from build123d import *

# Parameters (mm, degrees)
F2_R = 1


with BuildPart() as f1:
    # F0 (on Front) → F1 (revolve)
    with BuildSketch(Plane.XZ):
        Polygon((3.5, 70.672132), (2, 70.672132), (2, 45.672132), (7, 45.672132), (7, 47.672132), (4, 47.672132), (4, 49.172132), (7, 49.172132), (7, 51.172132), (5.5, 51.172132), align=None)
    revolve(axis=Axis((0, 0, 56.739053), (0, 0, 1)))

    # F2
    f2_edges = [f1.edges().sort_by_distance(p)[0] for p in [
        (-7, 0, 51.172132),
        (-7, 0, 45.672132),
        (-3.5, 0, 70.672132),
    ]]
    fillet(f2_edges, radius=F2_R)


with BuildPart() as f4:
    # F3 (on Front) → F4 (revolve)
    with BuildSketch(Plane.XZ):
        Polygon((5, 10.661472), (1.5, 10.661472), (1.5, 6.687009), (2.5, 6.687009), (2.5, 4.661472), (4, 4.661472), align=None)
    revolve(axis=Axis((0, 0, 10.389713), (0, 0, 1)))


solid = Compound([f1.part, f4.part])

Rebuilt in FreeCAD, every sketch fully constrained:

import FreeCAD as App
import Part
import Sketcher
from FreeCAD import Vector
Q = App.Units.Quantity


def edges_at(feature, points):
    """Names of the edges that pass closest to the given points."""
    edges = feature.Shape.Edges
    near = lambda p: min(range(len(edges)), key=lambda i: edges[i].distToShape(Part.Vertex(*p))[0])
    return sorted({f"Edge{near(p) + 1}" for p in points})


def add_polygon(sketch, points):
    """Adds a closed chain of lines whose ends are joined by coincident constraints."""
    first, n = sketch.GeometryCount, len(points)
    for a, b in zip(points, points[1:] + points[:1]):
        sketch.addGeometry(Part.LineSegment(App.Vector(*a, 0), App.Vector(*b, 0)), False)
    for i in range(n):
        sketch.addConstraint(Sketcher.Constraint("Coincident", first + i, 2, first + (i + 1) % n, 1))

doc = App.newDocument("Part")
params = doc.addObject("Spreadsheet::Sheet", "Params")
for row, (alias, value) in enumerate([
    ("sketch1_width", "5 mm"),
    ("sketch1_width2", "3 mm"),
    ("sketch1_height", "25 mm"),
    ("sketch1_height2", "2 mm"),
    ("sketch1_width3", "1.5 mm"),
    ("revolution_angle", "360 deg"),
    ("fillet_radius", "1 mm"),
    ("sketch2_width", "1 mm"),
    ("sketch2_width2", "3.5 mm"),
    ("sketch2_width3", "1.5 mm"),
    ("revolution2_angle", "360 deg"),
], start=1):
    params.set(f"A{row}", alias)
    params.set(f"B{row}", "=" + value)
    params.setAlias(f"B{row}", alias)

body = doc.addObject("PartDesign::Body", "Body")

# Sketch on XZ plane
sketch1 = body.newObject("Sketcher::SketchObject", "Sketch")
sketch1.AttachmentSupport = (doc.getObject("XZ_Plane"), [""])
sketch1.MapMode = "FlatFace"
add_polygon(sketch1, [(3.5, 70.7), (2, 70.7), (2, 45.7), (7, 45.7), (7, 47.7), (4, 47.7), (4, 49.2), (7, 49.2), (7, 51.2), (5.5, 51.2)])  # lines 0-9
sketch1.addConstraint([
    Sketcher.Constraint("Horizontal", 0),
    Sketcher.Constraint("Vertical", 1),
    Sketcher.Constraint("Horizontal", 2),
    Sketcher.Constraint("Vertical", 3),
    Sketcher.Constraint("Horizontal", 4),
    Sketcher.Constraint("Vertical", 5),
    Sketcher.Constraint("Horizontal", 6),
    Sketcher.Constraint("Vertical", 7),
    Sketcher.Constraint("Horizontal", 8),
    Sketcher.Constraint("Vertical", 3, 2, 6, 2),
    Sketcher.Constraint("Equal", 0, 8),
    Sketcher.Constraint("Equal", 8, 5),
    Sketcher.Constraint("Equal", 3, 7),
    Sketcher.Constraint("DistanceX", 2, 1, 2, 2, Q("5 mm")),
    Sketcher.Constraint("DistanceX", 4, 2, 4, 1, Q("3 mm")),
    Sketcher.Constraint("DistanceY", 1, 2, 1, 1, Q("25 mm")),
    Sketcher.Constraint("DistanceY", 3, 1, 3, 2, Q("2 mm")),
    Sketcher.Constraint("DistanceX", 0, 2, 0, 1, Q("1.5 mm")),
    Sketcher.Constraint("DistanceX", -1, 1, 0, 2, Q("2 mm")),
    Sketcher.Constraint("DistanceY", -1, 1, 1, 2, Q("45.672132 mm")),
])
sketch1.setExpression("Constraints[23]", "Params.sketch1_width")
sketch1.setExpression("Constraints[24]", "Params.sketch1_width2")
sketch1.setExpression("Constraints[25]", "Params.sketch1_height")
sketch1.setExpression("Constraints[26]", "Params.sketch1_height2")
sketch1.setExpression("Constraints[27]", "Params.sketch1_width3")
revolution = body.newObject("PartDesign::Revolution", "Revolution")
revolution.Profile = sketch1
revolution.ReferenceAxis = (sketch1, ["V_Axis"])
revolution.setExpression("Angle", "Params.revolution_angle")
doc.recompute()

fillet = body.newObject("PartDesign::Fillet", "Fillet")
fillet.Base = (revolution, edges_at(revolution, [(-7, 0, 51.172), (-7, 0, 45.672), (-3.5, 0, 70.672)]))
fillet.setExpression("Radius", "Params.fillet_radius")
body2 = doc.addObject("PartDesign::Body", "Body001")

# Sketch on XZ plane
sketch2 = body2.newObject("Sketcher::SketchObject", "Sketch001")
sketch2.AttachmentSupport = (doc.getObject("XZ_Plane001"), [""])
sketch2.MapMode = "FlatFace"
add_polygon(sketch2, [(5, 10.7), (1.5, 10.7), (1.5, 6.7), (2.5, 6.7), (2.5, 4.7), (4, 4.7)])  # lines 0-5
sketch2.addConstraint([
    Sketcher.Constraint("Horizontal", 0),
    Sketcher.Constraint("Vertical", 1),
    Sketcher.Constraint("Horizontal", 2),
    Sketcher.Constraint("Vertical", 3),
    Sketcher.Constraint("Horizontal", 4),
    Sketcher.Constraint("DistanceX", 2, 1, 2, 2, Q("1 mm")),
    Sketcher.Constraint("DistanceX", 0, 2, 0, 1, Q("3.5 mm")),
    Sketcher.Constraint("DistanceX", 4, 1, 4, 2, Q("1.5 mm")),
    Sketcher.Constraint("DistanceX", -1, 1, 4, 2, Q("4 mm")),
    Sketcher.Constraint("DistanceY", 3, 2, 0, 2, Q("6 mm")),
    Sketcher.Constraint("DistanceY", 1, 2, 1, 1, Q("3.974463 mm")),
    Sketcher.Constraint("DistanceY", -1, 1, 1, 2, Q("6.687009 mm")),
])
sketch2.setExpression("Constraints[11]", "Params.sketch2_width")
sketch2.setExpression("Constraints[12]", "Params.sketch2_width2")
sketch2.setExpression("Constraints[13]", "Params.sketch2_width3")
revolution2 = body2.newObject("PartDesign::Revolution", "Revolution001")
revolution2.Profile = sketch2
revolution2.ReferenceAxis = (sketch2, ["V_Axis"])
revolution2.setExpression("Angle", "Params.revolution2_angle")

doc.recompute()
